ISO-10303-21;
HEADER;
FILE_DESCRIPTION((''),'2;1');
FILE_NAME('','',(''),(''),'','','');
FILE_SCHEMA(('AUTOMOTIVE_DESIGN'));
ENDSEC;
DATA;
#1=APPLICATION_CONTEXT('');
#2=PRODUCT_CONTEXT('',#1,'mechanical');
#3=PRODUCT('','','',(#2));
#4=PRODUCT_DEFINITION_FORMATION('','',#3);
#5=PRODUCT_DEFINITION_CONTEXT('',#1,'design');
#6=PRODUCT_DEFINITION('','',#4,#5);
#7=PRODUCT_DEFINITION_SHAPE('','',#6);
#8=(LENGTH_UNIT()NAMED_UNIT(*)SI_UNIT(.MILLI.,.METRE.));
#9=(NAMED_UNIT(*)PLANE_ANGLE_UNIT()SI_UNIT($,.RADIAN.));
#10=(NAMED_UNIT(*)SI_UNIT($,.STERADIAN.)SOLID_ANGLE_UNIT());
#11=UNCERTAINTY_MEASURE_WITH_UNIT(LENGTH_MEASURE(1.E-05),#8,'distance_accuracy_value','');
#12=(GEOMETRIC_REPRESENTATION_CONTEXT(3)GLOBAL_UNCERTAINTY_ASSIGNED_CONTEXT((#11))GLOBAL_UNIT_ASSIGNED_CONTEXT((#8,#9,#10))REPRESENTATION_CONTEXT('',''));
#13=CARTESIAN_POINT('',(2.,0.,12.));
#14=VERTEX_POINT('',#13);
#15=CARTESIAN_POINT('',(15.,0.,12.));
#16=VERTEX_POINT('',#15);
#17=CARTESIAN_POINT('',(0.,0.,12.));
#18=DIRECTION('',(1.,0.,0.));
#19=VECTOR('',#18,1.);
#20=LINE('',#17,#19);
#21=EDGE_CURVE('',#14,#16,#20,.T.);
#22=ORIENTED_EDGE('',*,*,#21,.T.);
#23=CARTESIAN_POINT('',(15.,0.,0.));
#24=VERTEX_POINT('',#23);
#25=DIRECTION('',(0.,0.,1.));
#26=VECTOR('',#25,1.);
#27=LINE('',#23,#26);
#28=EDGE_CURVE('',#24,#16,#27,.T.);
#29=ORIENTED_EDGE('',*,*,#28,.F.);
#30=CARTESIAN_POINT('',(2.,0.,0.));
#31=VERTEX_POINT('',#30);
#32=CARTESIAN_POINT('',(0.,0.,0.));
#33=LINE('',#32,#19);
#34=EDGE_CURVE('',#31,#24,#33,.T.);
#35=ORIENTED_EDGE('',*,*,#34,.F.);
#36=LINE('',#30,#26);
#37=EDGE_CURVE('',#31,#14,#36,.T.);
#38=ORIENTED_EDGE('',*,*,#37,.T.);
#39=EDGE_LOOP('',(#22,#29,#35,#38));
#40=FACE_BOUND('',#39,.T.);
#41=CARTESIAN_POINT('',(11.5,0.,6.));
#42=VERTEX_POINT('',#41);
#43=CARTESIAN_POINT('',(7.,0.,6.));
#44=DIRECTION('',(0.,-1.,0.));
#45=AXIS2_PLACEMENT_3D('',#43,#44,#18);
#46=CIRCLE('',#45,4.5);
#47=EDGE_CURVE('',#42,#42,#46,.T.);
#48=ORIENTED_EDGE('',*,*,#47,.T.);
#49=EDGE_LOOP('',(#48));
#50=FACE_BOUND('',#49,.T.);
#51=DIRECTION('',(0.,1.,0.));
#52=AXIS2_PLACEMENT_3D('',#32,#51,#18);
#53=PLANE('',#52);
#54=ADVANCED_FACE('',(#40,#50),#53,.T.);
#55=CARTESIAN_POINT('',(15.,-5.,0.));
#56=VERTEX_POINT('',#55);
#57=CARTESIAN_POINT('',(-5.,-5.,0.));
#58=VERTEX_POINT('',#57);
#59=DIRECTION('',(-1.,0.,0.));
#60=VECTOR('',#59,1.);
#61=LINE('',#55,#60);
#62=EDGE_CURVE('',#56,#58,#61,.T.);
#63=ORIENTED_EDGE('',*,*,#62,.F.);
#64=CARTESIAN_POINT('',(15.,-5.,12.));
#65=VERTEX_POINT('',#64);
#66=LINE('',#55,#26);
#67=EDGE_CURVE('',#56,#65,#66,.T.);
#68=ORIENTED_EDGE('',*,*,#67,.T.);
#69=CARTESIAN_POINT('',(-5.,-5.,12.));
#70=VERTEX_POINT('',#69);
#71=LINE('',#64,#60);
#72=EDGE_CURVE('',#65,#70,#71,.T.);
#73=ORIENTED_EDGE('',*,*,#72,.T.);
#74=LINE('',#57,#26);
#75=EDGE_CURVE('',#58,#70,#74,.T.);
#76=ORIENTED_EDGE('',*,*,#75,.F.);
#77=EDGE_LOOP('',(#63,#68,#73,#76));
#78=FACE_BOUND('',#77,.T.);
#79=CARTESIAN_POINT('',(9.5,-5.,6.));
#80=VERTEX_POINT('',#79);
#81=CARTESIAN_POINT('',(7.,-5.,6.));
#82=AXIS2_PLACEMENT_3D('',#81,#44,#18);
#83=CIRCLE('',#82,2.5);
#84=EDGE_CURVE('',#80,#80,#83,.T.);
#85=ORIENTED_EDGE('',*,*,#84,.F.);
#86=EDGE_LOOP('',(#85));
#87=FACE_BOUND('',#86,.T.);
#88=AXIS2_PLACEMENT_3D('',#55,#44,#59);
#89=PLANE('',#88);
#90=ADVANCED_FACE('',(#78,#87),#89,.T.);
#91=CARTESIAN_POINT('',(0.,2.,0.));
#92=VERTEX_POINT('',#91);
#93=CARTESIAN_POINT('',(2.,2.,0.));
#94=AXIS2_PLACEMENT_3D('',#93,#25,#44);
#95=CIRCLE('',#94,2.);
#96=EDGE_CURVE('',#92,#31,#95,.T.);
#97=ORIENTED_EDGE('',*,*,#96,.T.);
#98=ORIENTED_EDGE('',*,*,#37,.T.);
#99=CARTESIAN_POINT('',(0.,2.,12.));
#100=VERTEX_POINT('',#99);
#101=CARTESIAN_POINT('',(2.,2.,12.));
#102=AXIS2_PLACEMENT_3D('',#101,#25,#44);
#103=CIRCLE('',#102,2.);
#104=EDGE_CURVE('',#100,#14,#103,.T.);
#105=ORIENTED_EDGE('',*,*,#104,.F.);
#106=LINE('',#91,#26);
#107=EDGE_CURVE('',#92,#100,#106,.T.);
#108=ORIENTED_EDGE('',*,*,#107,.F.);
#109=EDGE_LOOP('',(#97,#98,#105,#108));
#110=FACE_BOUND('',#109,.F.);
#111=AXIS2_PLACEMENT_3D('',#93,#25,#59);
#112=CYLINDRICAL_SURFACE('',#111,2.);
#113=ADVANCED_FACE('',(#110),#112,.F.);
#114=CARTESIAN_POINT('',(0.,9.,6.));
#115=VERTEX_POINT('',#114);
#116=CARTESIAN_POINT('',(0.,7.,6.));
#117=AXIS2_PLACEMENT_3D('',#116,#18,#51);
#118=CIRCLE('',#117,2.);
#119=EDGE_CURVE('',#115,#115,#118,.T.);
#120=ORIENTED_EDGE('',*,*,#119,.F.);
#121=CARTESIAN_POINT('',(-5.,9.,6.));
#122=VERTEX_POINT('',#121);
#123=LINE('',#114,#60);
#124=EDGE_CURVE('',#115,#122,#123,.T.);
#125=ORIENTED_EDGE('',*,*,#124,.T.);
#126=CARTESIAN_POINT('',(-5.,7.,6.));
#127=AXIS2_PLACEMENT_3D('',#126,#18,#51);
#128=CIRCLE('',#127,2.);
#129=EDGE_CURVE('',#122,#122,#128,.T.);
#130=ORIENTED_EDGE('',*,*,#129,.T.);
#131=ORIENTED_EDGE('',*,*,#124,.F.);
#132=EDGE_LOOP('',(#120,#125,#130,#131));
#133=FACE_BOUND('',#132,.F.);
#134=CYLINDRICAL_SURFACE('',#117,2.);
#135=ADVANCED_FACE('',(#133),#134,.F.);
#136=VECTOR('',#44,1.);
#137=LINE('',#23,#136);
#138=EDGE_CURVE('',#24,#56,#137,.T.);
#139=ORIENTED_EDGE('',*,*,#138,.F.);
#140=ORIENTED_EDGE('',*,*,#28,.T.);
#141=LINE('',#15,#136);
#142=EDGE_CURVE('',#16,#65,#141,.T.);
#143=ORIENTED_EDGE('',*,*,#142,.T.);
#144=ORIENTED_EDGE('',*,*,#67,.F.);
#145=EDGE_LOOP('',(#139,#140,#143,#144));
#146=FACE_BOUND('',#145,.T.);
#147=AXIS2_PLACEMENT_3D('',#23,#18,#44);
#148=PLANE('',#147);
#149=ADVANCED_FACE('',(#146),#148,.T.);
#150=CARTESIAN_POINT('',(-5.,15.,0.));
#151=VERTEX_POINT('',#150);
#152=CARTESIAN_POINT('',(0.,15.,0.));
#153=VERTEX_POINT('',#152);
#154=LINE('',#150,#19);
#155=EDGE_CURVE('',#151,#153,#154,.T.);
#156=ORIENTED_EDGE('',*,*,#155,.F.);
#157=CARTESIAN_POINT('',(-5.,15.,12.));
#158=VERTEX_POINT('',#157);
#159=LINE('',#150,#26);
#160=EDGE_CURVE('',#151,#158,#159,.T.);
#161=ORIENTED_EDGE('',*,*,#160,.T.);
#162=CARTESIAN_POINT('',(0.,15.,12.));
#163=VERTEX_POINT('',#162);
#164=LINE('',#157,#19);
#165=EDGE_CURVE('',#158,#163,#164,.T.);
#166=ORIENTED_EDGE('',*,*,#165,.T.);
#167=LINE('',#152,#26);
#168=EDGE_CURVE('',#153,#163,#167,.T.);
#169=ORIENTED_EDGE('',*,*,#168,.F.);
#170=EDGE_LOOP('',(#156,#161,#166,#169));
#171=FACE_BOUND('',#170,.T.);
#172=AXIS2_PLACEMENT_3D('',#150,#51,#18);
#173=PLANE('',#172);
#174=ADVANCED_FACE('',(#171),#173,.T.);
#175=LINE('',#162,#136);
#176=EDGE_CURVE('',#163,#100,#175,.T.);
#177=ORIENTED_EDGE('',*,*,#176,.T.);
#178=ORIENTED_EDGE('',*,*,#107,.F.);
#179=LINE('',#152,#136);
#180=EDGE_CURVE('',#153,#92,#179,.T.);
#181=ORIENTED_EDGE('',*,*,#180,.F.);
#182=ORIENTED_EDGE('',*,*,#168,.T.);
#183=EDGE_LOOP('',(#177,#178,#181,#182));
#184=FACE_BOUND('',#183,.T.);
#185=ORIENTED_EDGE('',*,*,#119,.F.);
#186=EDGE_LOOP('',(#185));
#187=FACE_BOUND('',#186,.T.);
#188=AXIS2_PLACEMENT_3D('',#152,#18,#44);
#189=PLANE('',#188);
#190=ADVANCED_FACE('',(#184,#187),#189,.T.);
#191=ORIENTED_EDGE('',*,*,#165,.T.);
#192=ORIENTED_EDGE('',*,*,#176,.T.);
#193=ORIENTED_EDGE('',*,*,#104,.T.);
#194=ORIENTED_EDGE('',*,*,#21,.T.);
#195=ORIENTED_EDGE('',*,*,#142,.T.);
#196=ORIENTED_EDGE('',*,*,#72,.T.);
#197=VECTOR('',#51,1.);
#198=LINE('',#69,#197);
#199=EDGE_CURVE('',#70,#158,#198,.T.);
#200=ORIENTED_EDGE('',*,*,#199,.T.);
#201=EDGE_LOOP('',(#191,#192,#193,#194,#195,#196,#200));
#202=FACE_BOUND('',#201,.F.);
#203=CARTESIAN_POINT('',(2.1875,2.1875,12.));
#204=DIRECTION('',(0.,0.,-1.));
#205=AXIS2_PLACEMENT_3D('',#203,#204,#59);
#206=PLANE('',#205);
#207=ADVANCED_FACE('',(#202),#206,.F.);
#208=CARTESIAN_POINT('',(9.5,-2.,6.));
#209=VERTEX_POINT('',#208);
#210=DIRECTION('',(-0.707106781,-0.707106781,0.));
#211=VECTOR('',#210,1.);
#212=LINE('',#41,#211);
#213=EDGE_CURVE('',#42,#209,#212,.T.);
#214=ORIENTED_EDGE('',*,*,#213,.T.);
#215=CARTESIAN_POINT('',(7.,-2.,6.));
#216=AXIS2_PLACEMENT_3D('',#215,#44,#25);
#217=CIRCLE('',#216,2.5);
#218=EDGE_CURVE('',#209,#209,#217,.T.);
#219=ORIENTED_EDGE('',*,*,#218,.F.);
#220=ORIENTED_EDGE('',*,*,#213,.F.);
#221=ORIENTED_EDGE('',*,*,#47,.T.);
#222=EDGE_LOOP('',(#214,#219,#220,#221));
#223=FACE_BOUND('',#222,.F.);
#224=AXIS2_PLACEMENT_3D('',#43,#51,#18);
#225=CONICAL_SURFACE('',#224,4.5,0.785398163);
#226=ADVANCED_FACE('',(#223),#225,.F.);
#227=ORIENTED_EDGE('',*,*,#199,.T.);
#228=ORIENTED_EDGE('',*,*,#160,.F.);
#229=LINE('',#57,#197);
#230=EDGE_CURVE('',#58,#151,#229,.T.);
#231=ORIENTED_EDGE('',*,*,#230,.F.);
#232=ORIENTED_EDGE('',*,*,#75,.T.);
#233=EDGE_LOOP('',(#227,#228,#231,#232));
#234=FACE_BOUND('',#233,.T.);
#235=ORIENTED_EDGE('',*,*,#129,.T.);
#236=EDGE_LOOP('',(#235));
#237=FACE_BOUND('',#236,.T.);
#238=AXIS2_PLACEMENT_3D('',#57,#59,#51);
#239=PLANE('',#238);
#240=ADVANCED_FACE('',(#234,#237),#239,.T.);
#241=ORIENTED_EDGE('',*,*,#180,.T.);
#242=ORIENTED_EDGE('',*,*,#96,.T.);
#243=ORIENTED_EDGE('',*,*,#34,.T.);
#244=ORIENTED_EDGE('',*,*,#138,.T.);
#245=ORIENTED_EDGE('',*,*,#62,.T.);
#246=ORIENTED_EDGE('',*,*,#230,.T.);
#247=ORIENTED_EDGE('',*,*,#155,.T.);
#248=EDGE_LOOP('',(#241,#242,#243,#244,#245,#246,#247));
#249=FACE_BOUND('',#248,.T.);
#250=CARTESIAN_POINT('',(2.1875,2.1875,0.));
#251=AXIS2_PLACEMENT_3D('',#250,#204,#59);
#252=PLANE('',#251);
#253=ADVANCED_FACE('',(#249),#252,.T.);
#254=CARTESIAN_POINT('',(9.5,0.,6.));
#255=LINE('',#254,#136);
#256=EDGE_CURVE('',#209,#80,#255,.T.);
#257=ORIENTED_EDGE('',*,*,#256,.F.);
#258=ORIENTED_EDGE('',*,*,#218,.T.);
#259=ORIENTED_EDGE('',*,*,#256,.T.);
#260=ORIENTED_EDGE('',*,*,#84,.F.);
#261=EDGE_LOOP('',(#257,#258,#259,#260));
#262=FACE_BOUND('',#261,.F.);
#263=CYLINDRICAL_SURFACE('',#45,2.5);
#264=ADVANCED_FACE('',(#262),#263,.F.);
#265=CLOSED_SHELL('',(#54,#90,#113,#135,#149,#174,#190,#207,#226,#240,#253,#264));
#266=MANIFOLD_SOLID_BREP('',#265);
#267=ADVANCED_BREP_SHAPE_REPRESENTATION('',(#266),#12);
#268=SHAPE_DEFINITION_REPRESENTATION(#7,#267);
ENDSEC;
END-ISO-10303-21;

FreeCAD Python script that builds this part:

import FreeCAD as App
import Part
import Sketcher
from FreeCAD import Vector
Q = App.Units.Quantity


def edges_at(feature, points):
    """Names of the edges that pass closest to the given points."""
    edges = feature.Shape.Edges
    near = lambda p: min(range(len(edges)), key=lambda i: edges[i].distToShape(Part.Vertex(*p))[0])
    return sorted({f"Edge{near(p) + 1}" for p in points})

doc = App.newDocument("Part")
params = doc.addObject("Spreadsheet::Sheet", "Params")
for row, (alias, value) in enumerate([
    ("sketch1_width", "5 mm"),
    ("sketch1_width2", "20 mm"),
    ("pad1_length", "12 mm"),
    ("sketch2_diameter", "4 mm"),
    ("sketch3_diameter", "5 mm"),
    ("hole_diameter", "5 mm"),
    ("hole_depth", "25 mm"),
    ("hole_csink_diameter", "9 mm"),
    ("fillet_radius", "2 mm"),
], start=1):
    params.set(f"A{row}", alias)
    params.set(f"B{row}", "=" + value)
    params.setAlias(f"B{row}", alias)

body = doc.addObject("PartDesign::Body", "Body")

# Sketch on XY plane
sketch1 = body.newObject("Sketcher::SketchObject", "Sketch")
sketch1.AttachmentSupport = (doc.getObject("XY_Plane"), [""])
sketch1.MapMode = "FlatFace"
sketch1.addGeometry([
    Part.LineSegment(Vector(0, 0, 0), Vector(0, 15, 0)),  # 0
    Part.LineSegment(Vector(0, 15, 0), Vector(-5, 15, 0)),  # 1
    Part.LineSegment(Vector(-5, 15, 0), Vector(-5, -5, 0)),  # 2
    Part.LineSegment(Vector(-5, -5, 0), Vector(15, -5, 0)),  # 3
    Part.LineSegment(Vector(15, -5, 0), Vector(15, 0, 0)),  # 4
    Part.LineSegment(Vector(15, 0, 0), Vector(0, 0, 0)),  # 5
], False)
sketch1.addConstraint([
    Sketcher.Constraint("Coincident", 0, 2, 1, 1),
    Sketcher.Constraint("Coincident", 1, 2, 2, 1),
    Sketcher.Constraint("Coincident", 2, 2, 3, 1),
    Sketcher.Constraint("Coincident", 3, 2, 4, 1),
    Sketcher.Constraint("Coincident", 4, 2, 5, 1),
    Sketcher.Constraint("Coincident", 5, 2, 0, 1),
    Sketcher.Constraint("Vertical", 0),
    Sketcher.Constraint("Horizontal", 1),
    Sketcher.Constraint("Vertical", 2),
    Sketcher.Constraint("Horizontal", 3),
    Sketcher.Constraint("Vertical", 4),
    Sketcher.Constraint("Horizontal", 5),
    Sketcher.Constraint("Coincident", 5, 2, -1, 1),
    Sketcher.Constraint("Equal", 5, 0),
    Sketcher.Constraint("Equal", 3, 2),
    Sketcher.Constraint("DistanceX", 1, 2, 1, 1, Q("5 mm")),
    Sketcher.Constraint("DistanceX", 3, 1, 3, 2, Q("20 mm")),
])
sketch1.setExpression("Constraints[15]", "Params.sketch1_width")
sketch1.setExpression("Constraints[16]", "Params.sketch1_width2")
pad1 = body.newObject("PartDesign::Pad", "Pad")
pad1.Profile = sketch1
pad1.setExpression("Length", "Params.pad1_length")

# Sketch on YZ plane
sketch2 = body.newObject("Sketcher::SketchObject", "Sketch001")
sketch2.AttachmentSupport = (doc.getObject("YZ_Plane"), [""])
sketch2.MapMode = "FlatFace"
sketch2.addGeometry(Part.Circle(Vector(7, 6, 0), Vector(0, 0, 1), 2), False)
sketch2.addConstraint([
    Sketcher.Constraint("Diameter", 0, Q("4 mm")),
    Sketcher.Constraint("DistanceX", -1, 1, 0, 3, Q("7 mm")),
    Sketcher.Constraint("DistanceY", -1, 1, 0, 3, Q("6 mm")),
])
sketch2.setExpression("Constraints[0]", "Params.sketch2_diameter")
pocket1 = body.newObject("PartDesign::Pocket", "Pocket")
pocket1.Profile = sketch2
pocket1.Type = "ThroughAll"

# Sketch on XZ plane
sketch3 = body.newObject("Sketcher::SketchObject", "Sketch002")
sketch3.AttachmentSupport = (doc.getObject("XZ_Plane"), [""])
sketch3.MapMode = "FlatFace"
sketch3.addGeometry(Part.Circle(Vector(7, 6, 0), Vector(0, 0, 1), 2.5), False)
sketch3.addConstraint([
    Sketcher.Constraint("Diameter", 0, Q("5 mm")),
    Sketcher.Constraint("DistanceX", -1, 1, 0, 3, Q("7 mm")),
    Sketcher.Constraint("DistanceY", -1, 1, 0, 3, Q("6 mm")),
])
sketch3.setExpression("Constraints[0]", "Params.sketch3_diameter")
doc.recompute()
hole = body.newObject("PartDesign::Hole", "Hole")
hole.Profile = sketch3
hole.ThreadType = "None"
hole.setExpression("Diameter", "Params.hole_diameter")
hole.DepthType = "Dimension"
hole.setExpression("Depth", "Params.hole_depth")
hole.DrillPoint = "Flat"
hole.HoleCutType = "Countersink"
hole.setExpression("HoleCutDiameter", "Params.hole_csink_diameter")
hole.HoleCutCountersinkAngle = 90
hole.Reversed = True
doc.recompute()

fillet = body.newObject("PartDesign::Fillet", "Fillet")
fillet.Base = (hole, edges_at(hole, [(0, 0, 6)]))
fillet.setExpression("Radius", "Params.fillet_radius")

doc.recompute()
